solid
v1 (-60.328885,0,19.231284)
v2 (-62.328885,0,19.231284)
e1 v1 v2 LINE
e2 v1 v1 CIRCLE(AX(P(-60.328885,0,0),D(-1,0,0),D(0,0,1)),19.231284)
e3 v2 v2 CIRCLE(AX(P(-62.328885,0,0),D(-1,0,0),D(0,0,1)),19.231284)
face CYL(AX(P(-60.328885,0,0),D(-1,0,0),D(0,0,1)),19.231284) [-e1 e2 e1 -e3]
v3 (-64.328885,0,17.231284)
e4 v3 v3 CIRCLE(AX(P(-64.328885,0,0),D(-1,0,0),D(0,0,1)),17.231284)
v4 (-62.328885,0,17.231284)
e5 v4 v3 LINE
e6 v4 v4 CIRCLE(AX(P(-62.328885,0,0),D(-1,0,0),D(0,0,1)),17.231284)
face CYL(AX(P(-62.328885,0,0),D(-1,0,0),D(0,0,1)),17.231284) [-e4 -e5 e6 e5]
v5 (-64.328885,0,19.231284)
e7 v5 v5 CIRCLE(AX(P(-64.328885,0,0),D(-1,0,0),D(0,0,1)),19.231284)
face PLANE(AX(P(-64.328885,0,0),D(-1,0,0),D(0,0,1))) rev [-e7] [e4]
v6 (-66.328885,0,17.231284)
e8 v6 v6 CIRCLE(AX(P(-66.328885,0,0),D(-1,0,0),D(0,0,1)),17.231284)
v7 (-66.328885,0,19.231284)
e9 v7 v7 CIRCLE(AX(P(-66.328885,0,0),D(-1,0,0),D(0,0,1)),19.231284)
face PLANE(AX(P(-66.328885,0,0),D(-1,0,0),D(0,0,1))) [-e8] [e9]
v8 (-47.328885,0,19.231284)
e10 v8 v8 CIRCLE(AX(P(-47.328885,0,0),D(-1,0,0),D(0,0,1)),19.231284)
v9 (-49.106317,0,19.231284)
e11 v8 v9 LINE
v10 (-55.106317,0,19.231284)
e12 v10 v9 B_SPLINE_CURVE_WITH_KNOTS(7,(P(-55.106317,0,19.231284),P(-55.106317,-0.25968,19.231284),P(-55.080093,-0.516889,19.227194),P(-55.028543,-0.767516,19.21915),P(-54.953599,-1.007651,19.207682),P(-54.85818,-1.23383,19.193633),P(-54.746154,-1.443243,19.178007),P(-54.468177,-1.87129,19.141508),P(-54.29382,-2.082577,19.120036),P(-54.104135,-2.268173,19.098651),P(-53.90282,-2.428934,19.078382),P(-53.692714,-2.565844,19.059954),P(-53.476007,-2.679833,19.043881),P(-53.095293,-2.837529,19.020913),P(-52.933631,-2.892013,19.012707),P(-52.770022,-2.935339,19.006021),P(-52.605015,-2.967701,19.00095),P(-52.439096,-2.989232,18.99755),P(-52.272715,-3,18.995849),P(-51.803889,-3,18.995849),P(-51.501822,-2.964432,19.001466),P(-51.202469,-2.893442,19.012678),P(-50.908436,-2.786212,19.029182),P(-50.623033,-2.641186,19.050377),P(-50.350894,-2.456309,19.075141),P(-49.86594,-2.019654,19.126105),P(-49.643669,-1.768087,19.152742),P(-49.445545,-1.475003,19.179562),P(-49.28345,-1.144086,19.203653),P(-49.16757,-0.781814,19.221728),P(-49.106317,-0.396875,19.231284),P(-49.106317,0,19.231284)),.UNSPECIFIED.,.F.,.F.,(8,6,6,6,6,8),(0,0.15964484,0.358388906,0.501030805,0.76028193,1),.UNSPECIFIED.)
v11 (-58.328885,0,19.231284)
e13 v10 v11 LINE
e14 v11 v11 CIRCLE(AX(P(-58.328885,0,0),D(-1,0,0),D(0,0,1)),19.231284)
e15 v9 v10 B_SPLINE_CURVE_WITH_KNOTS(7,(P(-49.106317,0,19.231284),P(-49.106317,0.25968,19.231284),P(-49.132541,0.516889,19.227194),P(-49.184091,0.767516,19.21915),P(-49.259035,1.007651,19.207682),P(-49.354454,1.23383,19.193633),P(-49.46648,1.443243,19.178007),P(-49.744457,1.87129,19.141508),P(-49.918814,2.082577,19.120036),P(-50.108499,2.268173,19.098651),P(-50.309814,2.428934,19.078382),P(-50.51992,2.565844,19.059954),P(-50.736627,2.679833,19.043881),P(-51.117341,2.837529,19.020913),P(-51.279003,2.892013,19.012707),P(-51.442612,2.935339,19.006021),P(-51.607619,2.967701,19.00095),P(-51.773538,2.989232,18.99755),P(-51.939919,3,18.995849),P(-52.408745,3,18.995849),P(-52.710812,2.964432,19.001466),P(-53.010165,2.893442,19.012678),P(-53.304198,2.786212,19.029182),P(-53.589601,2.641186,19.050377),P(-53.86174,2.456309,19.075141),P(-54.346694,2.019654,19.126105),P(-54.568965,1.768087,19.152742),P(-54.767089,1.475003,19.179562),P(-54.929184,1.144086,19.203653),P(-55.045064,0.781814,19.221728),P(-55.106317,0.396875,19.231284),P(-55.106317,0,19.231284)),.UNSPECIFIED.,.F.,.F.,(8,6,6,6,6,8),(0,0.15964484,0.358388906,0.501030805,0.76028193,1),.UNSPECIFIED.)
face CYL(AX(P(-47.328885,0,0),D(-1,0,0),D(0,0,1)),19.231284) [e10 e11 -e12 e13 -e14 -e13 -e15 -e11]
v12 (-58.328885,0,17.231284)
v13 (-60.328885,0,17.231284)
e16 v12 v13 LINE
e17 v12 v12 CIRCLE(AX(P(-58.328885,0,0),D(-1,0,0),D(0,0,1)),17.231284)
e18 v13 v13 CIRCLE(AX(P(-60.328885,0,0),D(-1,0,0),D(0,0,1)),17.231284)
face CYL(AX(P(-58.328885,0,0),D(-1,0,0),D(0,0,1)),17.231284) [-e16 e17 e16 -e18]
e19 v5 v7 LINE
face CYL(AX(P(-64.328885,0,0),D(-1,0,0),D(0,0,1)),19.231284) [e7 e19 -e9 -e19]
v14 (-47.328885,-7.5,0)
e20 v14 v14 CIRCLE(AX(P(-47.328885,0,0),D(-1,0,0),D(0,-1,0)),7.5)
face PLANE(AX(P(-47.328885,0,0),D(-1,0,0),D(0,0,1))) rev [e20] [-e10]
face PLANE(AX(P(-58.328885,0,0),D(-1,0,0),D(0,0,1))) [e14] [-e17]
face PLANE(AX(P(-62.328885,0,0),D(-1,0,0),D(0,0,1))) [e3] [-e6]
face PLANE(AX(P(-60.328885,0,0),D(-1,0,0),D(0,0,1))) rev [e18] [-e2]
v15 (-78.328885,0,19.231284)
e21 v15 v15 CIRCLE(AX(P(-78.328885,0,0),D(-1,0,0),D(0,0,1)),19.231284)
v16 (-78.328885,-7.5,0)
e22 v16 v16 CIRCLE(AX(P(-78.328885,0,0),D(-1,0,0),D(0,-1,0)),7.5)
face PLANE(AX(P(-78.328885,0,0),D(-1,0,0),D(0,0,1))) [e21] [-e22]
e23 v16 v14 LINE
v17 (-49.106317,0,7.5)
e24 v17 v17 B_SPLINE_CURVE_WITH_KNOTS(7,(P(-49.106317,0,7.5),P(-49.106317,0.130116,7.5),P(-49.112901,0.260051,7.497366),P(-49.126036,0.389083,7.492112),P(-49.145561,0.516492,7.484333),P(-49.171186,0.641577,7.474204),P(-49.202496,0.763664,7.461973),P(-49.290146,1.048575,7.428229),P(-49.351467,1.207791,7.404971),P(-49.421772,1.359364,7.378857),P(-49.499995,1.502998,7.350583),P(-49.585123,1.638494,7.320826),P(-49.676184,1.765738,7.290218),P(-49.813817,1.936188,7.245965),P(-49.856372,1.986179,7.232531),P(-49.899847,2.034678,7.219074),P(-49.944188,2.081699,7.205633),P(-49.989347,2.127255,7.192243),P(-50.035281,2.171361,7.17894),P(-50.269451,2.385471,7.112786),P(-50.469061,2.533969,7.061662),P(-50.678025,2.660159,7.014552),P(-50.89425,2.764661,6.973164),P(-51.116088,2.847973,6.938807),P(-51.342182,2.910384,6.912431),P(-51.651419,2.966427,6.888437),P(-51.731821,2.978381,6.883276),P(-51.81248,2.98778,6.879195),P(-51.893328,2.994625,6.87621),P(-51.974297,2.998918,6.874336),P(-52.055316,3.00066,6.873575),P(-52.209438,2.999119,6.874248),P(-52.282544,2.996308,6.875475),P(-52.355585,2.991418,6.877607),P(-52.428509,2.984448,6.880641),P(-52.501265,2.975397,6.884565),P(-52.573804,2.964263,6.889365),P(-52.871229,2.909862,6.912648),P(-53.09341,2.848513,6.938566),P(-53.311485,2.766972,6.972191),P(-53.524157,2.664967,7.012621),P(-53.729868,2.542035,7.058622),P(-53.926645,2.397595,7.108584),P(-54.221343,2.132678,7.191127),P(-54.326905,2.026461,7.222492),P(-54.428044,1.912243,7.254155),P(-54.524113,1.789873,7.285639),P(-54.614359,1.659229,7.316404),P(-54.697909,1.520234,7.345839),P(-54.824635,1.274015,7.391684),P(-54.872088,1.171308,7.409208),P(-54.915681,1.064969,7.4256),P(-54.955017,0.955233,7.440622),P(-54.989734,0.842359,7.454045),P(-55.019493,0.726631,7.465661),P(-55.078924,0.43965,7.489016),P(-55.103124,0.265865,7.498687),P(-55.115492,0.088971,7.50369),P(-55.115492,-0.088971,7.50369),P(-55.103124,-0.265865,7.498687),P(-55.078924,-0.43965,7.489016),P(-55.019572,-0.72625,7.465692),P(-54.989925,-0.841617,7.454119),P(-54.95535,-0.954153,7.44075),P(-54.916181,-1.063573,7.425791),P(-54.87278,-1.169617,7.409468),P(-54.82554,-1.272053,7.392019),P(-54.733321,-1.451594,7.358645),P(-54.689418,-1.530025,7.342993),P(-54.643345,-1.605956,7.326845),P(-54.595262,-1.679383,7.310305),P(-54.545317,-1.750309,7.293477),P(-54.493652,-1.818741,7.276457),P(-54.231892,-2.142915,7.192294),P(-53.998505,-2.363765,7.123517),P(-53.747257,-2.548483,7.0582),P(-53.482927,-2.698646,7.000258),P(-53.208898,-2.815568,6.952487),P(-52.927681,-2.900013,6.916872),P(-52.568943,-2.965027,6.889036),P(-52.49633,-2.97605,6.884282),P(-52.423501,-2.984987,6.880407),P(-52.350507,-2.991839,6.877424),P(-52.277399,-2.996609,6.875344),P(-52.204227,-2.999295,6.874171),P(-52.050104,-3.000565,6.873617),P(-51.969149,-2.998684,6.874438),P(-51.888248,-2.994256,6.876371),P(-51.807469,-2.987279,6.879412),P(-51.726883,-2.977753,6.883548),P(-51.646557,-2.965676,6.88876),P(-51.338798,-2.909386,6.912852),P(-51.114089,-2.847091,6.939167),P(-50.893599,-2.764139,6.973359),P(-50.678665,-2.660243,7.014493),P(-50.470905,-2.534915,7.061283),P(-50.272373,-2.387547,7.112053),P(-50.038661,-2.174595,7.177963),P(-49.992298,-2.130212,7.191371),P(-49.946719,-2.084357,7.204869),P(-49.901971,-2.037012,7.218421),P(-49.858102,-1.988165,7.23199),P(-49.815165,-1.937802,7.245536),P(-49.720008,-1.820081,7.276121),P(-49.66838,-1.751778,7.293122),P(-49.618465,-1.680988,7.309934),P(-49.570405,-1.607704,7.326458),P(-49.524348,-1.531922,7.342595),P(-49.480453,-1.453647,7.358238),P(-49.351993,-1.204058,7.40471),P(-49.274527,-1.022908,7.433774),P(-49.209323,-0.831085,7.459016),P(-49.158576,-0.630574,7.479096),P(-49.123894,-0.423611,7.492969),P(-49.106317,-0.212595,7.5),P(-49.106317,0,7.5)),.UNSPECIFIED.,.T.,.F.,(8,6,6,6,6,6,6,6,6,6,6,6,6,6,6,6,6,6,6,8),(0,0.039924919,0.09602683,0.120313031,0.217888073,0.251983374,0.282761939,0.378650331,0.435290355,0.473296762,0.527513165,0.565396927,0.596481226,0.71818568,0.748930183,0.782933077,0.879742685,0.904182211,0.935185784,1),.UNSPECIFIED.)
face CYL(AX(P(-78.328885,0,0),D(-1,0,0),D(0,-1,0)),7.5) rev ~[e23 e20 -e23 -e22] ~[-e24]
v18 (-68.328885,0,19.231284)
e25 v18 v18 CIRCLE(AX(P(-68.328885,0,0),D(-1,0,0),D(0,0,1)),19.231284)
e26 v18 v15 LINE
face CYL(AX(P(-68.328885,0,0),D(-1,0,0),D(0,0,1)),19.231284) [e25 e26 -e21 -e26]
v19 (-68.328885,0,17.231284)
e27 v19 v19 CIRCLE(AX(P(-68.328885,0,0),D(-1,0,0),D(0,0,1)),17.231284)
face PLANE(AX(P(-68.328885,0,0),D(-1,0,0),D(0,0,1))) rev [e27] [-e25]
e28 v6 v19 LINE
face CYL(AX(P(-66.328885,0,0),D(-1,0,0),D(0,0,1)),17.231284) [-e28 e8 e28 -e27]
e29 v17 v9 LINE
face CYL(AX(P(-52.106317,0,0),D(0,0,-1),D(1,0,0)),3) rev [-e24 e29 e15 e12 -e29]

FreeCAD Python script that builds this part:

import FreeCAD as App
import Part
import Sketcher

V = App.Vector
Q = App.Units.Quantity

doc = App.newDocument("Part")
body = doc.addObject("PartDesign::Body", "Body")

sketch1 = doc.addObject("Sketcher::SketchObject", "Sketch")
body.addObject(sketch1)
sketch1.AttachmentSupport = (doc.XZ_Plane, [""])
sketch1.MapMode = "FlatFace"
sketch1.addGeometry(Part.LineSegment(V(-78.328885, 0, 0), V(-47.328885, 0, 0)), False)
sketch1.addGeometry(Part.LineSegment(V(-47.328885, 0, 0), V(-47.328885, 19.231284, 0)), False)
sketch1.addGeometry(Part.LineSegment(V(-47.328885, 19.231284, 0), V(-58.328885, 19.231284, 0)), False)
sketch1.addGeometry(Part.LineSegment(V(-58.328885, 19.231284, 0), V(-58.328885, 17.231284, 0)), False)
sketch1.addGeometry(Part.LineSegment(V(-58.328885, 17.231284, 0), V(-60.328885, 17.231284, 0)), False)
sketch1.addGeometry(Part.LineSegment(V(-60.328885, 17.231284, 0), V(-60.328885, 19.231284, 0)), False)
sketch1.addGeometry(Part.LineSegment(V(-60.328885, 19.231284, 0), V(-62.328885, 19.231284, 0)), False)
sketch1.addGeometry(Part.LineSegment(V(-62.328885, 19.231284, 0), V(-62.328885, 17.231284, 0)), False)
sketch1.addGeometry(Part.LineSegment(V(-62.328885, 17.231284, 0), V(-64.328885, 17.231284, 0)), False)
sketch1.addGeometry(Part.LineSegment(V(-64.328885, 17.231284, 0), V(-64.328885, 19.231284, 0)), False)
sketch1.addGeometry(Part.LineSegment(V(-64.328885, 19.231284, 0), V(-66.328885, 19.231284, 0)), False)
sketch1.addGeometry(Part.LineSegment(V(-66.328885, 19.231284, 0), V(-66.328885, 17.231284, 0)), False)
sketch1.addGeometry(Part.LineSegment(V(-66.328885, 17.231284, 0), V(-68.328885, 17.231284, 0)), False)
sketch1.addGeometry(Part.LineSegment(V(-68.328885, 17.231284, 0), V(-68.328885, 19.231284, 0)), False)
sketch1.addGeometry(Part.LineSegment(V(-68.328885, 19.231284, 0), V(-78.328885, 19.231284, 0)), False)
sketch1.addGeometry(Part.LineSegment(V(-78.328885, 19.231284, 0), V(-78.328885, 0, 0)), False)
sketch1.addConstraint(Sketcher.Constraint("Coincident", 0, 2, 1, 1))
sketch1.addConstraint(Sketcher.Constraint("Coincident", 1, 2, 2, 1))
sketch1.addConstraint(Sketcher.Constraint("Coincident", 2, 2, 3, 1))
sketch1.addConstraint(Sketcher.Constraint("Coincident", 3, 2, 4, 1))
sketch1.addConstraint(Sketcher.Constraint("Coincident", 4, 2, 5, 1))
sketch1.addConstraint(Sketcher.Constraint("Coincident", 5, 2, 6, 1))
sketch1.addConstraint(Sketcher.Constraint("Coincident", 6, 2, 7, 1))
sketch1.addConstraint(Sketcher.Constraint("Coincident", 7, 2, 8, 1))
sketch1.addConstraint(Sketcher.Constraint("Coincident", 8, 2, 9, 1))
sketch1.addConstraint(Sketcher.Constraint("Coincident", 9, 2, 10, 1))
sketch1.addConstraint(Sketcher.Constraint("Coincident", 10, 2, 11, 1))
sketch1.addConstraint(Sketcher.Constraint("Coincident", 11, 2, 12, 1))
sketch1.addConstraint(Sketcher.Constraint("Coincident", 12, 2, 13, 1))
sketch1.addConstraint(Sketcher.Constraint("Coincident", 13, 2, 14, 1))
sketch1.addConstraint(Sketcher.Constraint("Coincident", 14, 2, 15, 1))
sketch1.addConstraint(Sketcher.Constraint("Coincident", 15, 2, 0, 1))
sketch1.addConstraint(Sketcher.Constraint("Horizontal", 0))
sketch1.addConstraint(Sketcher.Constraint("Vertical", 1))
sketch1.addConstraint(Sketcher.Constraint("Horizontal", 2))
sketch1.addConstraint(Sketcher.Constraint("Vertical", 3))
sketch1.addConstraint(Sketcher.Constraint("Horizontal", 4))
sketch1.addConstraint(Sketcher.Constraint("Vertical", 5))
sketch1.addConstraint(Sketcher.Constraint("Horizontal", 6))
sketch1.addConstraint(Sketcher.Constraint("Vertical", 7))
sketch1.addConstraint(Sketcher.Constraint("Horizontal", 8))
sketch1.addConstraint(Sketcher.Constraint("Vertical", 9))
sketch1.addConstraint(Sketcher.Constraint("Horizontal", 10))
sketch1.addConstraint(Sketcher.Constraint("Vertical", 11))
sketch1.addConstraint(Sketcher.Constraint("Horizontal", 12))
sketch1.addConstraint(Sketcher.Constraint("Vertical", 13))
sketch1.addConstraint(Sketcher.Constraint("Horizontal", 14))
sketch1.addConstraint(Sketcher.Constraint("Vertical", 15))
sketch1.addConstraint(Sketcher.Constraint("PointOnObject", 0, 2, -1))
sketch1.addConstraint(Sketcher.Constraint("Horizontal", 2, 2, 5, 2))
sketch1.addConstraint(Sketcher.Constraint("Horizontal", 4, 2, 7, 2))
sketch1.addConstraint(Sketcher.Constraint("Horizontal", 6, 2, 9, 2))
sketch1.addConstraint(Sketcher.Constraint("Horizontal", 8, 2, 11, 2))
sketch1.addConstraint(Sketcher.Constraint("Horizontal", 10, 2, 13, 2))
sketch1.addConstraint(Sketcher.Constraint("Equal", 4, 6))
sketch1.addConstraint(Sketcher.Constraint("Equal", 6, 8))
sketch1.addConstraint(Sketcher.Constraint("Equal", 8, 10))
sketch1.addConstraint(Sketcher.Constraint("Equal", 10, 12))
sketch1.addConstraint(Sketcher.Constraint("Equal", 12, 3))
sketch1.addConstraint(Sketcher.Constraint("DistanceX", 0, 1, 0, 2, Q("31 mm")))
sketch1.addConstraint(Sketcher.Constraint("DistanceX", 2, 2, 2, 1, Q("11 mm")))
sketch1.addConstraint(Sketcher.Constraint("DistanceX", 4, 2, 4, 1, Q("2 mm")))
sketch1.addConstraint(Sketcher.Constraint("DistanceY", 1, 1, 1, 2, Q("19.231284 mm")))
sketch1.addConstraint(Sketcher.Constraint("DistanceX", 0, 2, -1, 1, Q("47.328885 mm")))
revolution = doc.addObject("PartDesign::Revolution", "Revolution")
body.addObject(revolution)
revolution.Profile = sketch1
revolution.ReferenceAxis = (sketch1, ["H_Axis"])
revolution.Angle = 360

sketch2 = doc.addObject("Sketcher::SketchObject", "Sketch001")
body.addObject(sketch2)
sketch2.AttachmentSupport = (doc.YZ_Plane, [""])
sketch2.MapMode = "FlatFace"
sketch2.AttachmentOffset = App.Placement(V(0, 0, -78.328885), App.Rotation())
sketch2.addGeometry(Part.Circle(V(0, 0, 0), V(0, 0, 1), 7.5), False)
sketch2.addConstraint(Sketcher.Constraint("Coincident", 0, 3, -1, 1))
sketch2.addConstraint(Sketcher.Constraint("Diameter", 0, Q("15 mm")))
pocket1 = doc.addObject("PartDesign::Pocket", "Pocket")
body.addObject(pocket1)
pocket1.Profile = sketch2
pocket1.Length = 40
pocket1.Reversed = True

sketch3 = doc.addObject("Sketcher::SketchObject", "Sketch002")
body.addObject(sketch3)
sketch3.AttachmentSupport = (doc.XY_Plane, [""])
sketch3.MapMode = "FlatFace"
sketch3.addGeometry(Part.Circle(V(-52.106317, 0, 0), V(0, 0, 1), 3), False)
sketch3.addConstraint(Sketcher.Constraint("PointOnObject", 0, 3, -1))
sketch3.addConstraint(Sketcher.Constraint("Diameter", 0, Q("6 mm")))
sketch3.addConstraint(Sketcher.Constraint("DistanceX", 0, 3, -1, 1, Q("52.106317 mm")))
pocket2 = doc.addObject("PartDesign::Pocket", "Pocket001")
body.addObject(pocket2)
pocket2.Profile = sketch3
pocket2.Length = 25
pocket2.Reversed = True

doc.recompute()
